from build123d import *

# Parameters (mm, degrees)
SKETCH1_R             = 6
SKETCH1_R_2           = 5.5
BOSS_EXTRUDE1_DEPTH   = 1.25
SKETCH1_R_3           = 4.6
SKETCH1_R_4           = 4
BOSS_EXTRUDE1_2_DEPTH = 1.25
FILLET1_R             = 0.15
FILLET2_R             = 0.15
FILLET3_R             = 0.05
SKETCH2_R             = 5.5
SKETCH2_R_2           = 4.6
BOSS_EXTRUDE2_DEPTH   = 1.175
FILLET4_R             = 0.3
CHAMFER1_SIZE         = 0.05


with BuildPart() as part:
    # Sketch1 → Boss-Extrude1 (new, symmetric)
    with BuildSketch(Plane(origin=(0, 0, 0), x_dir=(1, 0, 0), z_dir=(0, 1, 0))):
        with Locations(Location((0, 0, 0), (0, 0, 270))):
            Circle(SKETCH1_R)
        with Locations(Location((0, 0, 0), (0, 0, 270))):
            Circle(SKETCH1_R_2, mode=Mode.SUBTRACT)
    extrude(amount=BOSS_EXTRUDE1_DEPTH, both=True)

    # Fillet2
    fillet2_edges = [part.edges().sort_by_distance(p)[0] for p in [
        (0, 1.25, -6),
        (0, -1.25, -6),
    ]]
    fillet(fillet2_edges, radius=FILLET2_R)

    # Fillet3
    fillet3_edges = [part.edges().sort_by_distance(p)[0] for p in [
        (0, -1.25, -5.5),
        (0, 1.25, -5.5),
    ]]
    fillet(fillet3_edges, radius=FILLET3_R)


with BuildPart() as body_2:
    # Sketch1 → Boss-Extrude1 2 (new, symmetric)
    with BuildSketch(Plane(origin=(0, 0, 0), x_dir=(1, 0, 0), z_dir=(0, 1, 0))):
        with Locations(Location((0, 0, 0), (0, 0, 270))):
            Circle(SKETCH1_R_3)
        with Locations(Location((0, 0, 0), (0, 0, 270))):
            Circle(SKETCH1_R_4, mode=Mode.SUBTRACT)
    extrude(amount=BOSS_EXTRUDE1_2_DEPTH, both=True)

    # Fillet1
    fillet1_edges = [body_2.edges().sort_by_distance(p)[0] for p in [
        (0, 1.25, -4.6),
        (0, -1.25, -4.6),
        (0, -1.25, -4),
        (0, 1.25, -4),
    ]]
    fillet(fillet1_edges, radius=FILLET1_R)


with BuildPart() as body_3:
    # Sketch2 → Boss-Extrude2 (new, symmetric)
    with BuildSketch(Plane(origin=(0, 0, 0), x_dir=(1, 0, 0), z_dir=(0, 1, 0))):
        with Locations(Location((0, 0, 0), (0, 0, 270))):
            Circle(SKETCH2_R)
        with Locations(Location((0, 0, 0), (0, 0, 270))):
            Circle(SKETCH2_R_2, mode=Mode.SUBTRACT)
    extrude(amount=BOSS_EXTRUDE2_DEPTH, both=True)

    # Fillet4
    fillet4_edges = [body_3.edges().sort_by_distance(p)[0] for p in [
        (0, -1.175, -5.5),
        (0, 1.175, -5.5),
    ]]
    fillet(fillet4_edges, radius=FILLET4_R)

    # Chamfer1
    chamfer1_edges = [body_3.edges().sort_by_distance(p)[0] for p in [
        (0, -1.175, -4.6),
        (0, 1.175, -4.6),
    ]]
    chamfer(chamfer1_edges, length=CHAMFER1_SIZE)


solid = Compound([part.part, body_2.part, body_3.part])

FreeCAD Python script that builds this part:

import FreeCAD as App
import Part
import Sketcher

V = App.Vector
Q = App.Units.Quantity


def edges_at(feature, points):
    """Names of the edges that pass closest to the given points."""
    edges = feature.Shape.Edges
    near = lambda p: min(range(len(edges)), key=lambda i: edges[i].distToShape(Part.Vertex(*p))[0])
    return sorted({f"Edge{near(p) + 1}" for p in points})

doc = App.newDocument("Part")
body = doc.addObject("PartDesign::Body", "Body")

sketch1 = body.newObject("Sketcher::SketchObject", "Sketch")
sketch1.AttachmentSupport = (doc.getObject("XZ_Plane"), [""])
sketch1.MapMode = "FlatFace"
sketch1.addGeometry([
    Part.Circle(V(0, 0, 0), V(0, 0, 1), 6),
    Part.Circle(V(0, 0, 0), V(0, 0, 1), 5.5),
], False)
sketch1.addConstraint([
    Sketcher.Constraint("Coincident", 0, 3, -1, 1),
    Sketcher.Constraint("Coincident", 1, 3, -1, 1),
    Sketcher.Constraint("Diameter", 0, Q("12 mm")),
    Sketcher.Constraint("Diameter", 1, Q("11 mm")),
])
pad1 = body.newObject("PartDesign::Pad", "Pad")
pad1.Profile = sketch1
pad1.Length = 2.5
pad1.Midplane = True
doc.recompute()

fillet = body.newObject("PartDesign::Fillet", "Fillet")
fillet.Base = (pad1, edges_at(pad1, [(0, 1.25, -6), (0, -1.25, -6)]))
fillet.Radius = 0.15
doc.recompute()

fillet2 = body.newObject("PartDesign::Fillet", "Fillet001")
fillet2.Base = (fillet, edges_at(fillet, [(0, -1.25, -5.5), (0, 1.25, -5.5)]))
fillet2.Radius = 0.05
body2 = doc.addObject("PartDesign::Body", "Body001")

sketch2 = body2.newObject("Sketcher::SketchObject", "Sketch001")
sketch2.AttachmentSupport = (doc.getObject("XZ_Plane001"), [""])
sketch2.MapMode = "FlatFace"
sketch2.addGeometry([
    Part.Circle(V(0, 0, 0), V(0, 0, 1), 4.6),
    Part.Circle(V(0, 0, 0), V(0, 0, 1), 4),
], False)
sketch2.addConstraint([
    Sketcher.Constraint("Coincident", 0, 3, -1, 1),
    Sketcher.Constraint("Coincident", 1, 3, -1, 1),
    Sketcher.Constraint("Diameter", 1, Q("8 mm")),
    Sketcher.Constraint("Diameter", 0, Q("9.2 mm")),
])
pad2 = body2.newObject("PartDesign::Pad", "Pad001")
pad2.Profile = sketch2
pad2.Length = 2.5
pad2.Midplane = True
doc.recompute()

fillet3 = body2.newObject("PartDesign::Fillet", "Fillet002")
fillet3.Base = (pad2, edges_at(pad2, [
    (0, 1.25, -4.6),
    (0, -1.25, -4.6),
    (0, -1.25, -4),
    (0, 1.25, -4),
]))
fillet3.Radius = 0.15
body3 = doc.addObject("PartDesign::Body", "Body002")

sketch3 = body3.newObject("Sketcher::SketchObject", "Sketch002")
sketch3.AttachmentSupport = (doc.getObject("XZ_Plane002"), [""])
sketch3.MapMode = "FlatFace"
sketch3.addGeometry([
    Part.Circle(V(0, 0, 0), V(0, 0, 1), 5.5),
    Part.Circle(V(0, 0, 0), V(0, 0, 1), 4.6),
], False)
sketch3.addConstraint([
    Sketcher.Constraint("Coincident", 0, 3, -1, 1),
    Sketcher.Constraint("Coincident", 1, 3, -1, 1),
    Sketcher.Constraint("Diameter", 0, Q("11 mm")),
    Sketcher.Constraint("Diameter", 1, Q("9.2 mm")),
])
pad3 = body3.newObject("PartDesign::Pad", "Pad002")
pad3.Profile = sketch3
pad3.Length = 2.35
pad3.Midplane = True
doc.recompute()

fillet4 = body3.newObject("PartDesign::Fillet", "Fillet003")
fillet4.Base = (pad3, edges_at(pad3, [(0, -1.175, -5.5), (0, 1.175, -5.5)]))
fillet4.Radius = 0.3
doc.recompute()

chamfer = body3.newObject("PartDesign::Chamfer", "Chamfer")
chamfer.Base = (fillet4, edges_at(fillet4, [(0, -1.175, -4.6), (0, 1.175, -4.6)]))
chamfer.Size = 0.05

doc.recompute()
